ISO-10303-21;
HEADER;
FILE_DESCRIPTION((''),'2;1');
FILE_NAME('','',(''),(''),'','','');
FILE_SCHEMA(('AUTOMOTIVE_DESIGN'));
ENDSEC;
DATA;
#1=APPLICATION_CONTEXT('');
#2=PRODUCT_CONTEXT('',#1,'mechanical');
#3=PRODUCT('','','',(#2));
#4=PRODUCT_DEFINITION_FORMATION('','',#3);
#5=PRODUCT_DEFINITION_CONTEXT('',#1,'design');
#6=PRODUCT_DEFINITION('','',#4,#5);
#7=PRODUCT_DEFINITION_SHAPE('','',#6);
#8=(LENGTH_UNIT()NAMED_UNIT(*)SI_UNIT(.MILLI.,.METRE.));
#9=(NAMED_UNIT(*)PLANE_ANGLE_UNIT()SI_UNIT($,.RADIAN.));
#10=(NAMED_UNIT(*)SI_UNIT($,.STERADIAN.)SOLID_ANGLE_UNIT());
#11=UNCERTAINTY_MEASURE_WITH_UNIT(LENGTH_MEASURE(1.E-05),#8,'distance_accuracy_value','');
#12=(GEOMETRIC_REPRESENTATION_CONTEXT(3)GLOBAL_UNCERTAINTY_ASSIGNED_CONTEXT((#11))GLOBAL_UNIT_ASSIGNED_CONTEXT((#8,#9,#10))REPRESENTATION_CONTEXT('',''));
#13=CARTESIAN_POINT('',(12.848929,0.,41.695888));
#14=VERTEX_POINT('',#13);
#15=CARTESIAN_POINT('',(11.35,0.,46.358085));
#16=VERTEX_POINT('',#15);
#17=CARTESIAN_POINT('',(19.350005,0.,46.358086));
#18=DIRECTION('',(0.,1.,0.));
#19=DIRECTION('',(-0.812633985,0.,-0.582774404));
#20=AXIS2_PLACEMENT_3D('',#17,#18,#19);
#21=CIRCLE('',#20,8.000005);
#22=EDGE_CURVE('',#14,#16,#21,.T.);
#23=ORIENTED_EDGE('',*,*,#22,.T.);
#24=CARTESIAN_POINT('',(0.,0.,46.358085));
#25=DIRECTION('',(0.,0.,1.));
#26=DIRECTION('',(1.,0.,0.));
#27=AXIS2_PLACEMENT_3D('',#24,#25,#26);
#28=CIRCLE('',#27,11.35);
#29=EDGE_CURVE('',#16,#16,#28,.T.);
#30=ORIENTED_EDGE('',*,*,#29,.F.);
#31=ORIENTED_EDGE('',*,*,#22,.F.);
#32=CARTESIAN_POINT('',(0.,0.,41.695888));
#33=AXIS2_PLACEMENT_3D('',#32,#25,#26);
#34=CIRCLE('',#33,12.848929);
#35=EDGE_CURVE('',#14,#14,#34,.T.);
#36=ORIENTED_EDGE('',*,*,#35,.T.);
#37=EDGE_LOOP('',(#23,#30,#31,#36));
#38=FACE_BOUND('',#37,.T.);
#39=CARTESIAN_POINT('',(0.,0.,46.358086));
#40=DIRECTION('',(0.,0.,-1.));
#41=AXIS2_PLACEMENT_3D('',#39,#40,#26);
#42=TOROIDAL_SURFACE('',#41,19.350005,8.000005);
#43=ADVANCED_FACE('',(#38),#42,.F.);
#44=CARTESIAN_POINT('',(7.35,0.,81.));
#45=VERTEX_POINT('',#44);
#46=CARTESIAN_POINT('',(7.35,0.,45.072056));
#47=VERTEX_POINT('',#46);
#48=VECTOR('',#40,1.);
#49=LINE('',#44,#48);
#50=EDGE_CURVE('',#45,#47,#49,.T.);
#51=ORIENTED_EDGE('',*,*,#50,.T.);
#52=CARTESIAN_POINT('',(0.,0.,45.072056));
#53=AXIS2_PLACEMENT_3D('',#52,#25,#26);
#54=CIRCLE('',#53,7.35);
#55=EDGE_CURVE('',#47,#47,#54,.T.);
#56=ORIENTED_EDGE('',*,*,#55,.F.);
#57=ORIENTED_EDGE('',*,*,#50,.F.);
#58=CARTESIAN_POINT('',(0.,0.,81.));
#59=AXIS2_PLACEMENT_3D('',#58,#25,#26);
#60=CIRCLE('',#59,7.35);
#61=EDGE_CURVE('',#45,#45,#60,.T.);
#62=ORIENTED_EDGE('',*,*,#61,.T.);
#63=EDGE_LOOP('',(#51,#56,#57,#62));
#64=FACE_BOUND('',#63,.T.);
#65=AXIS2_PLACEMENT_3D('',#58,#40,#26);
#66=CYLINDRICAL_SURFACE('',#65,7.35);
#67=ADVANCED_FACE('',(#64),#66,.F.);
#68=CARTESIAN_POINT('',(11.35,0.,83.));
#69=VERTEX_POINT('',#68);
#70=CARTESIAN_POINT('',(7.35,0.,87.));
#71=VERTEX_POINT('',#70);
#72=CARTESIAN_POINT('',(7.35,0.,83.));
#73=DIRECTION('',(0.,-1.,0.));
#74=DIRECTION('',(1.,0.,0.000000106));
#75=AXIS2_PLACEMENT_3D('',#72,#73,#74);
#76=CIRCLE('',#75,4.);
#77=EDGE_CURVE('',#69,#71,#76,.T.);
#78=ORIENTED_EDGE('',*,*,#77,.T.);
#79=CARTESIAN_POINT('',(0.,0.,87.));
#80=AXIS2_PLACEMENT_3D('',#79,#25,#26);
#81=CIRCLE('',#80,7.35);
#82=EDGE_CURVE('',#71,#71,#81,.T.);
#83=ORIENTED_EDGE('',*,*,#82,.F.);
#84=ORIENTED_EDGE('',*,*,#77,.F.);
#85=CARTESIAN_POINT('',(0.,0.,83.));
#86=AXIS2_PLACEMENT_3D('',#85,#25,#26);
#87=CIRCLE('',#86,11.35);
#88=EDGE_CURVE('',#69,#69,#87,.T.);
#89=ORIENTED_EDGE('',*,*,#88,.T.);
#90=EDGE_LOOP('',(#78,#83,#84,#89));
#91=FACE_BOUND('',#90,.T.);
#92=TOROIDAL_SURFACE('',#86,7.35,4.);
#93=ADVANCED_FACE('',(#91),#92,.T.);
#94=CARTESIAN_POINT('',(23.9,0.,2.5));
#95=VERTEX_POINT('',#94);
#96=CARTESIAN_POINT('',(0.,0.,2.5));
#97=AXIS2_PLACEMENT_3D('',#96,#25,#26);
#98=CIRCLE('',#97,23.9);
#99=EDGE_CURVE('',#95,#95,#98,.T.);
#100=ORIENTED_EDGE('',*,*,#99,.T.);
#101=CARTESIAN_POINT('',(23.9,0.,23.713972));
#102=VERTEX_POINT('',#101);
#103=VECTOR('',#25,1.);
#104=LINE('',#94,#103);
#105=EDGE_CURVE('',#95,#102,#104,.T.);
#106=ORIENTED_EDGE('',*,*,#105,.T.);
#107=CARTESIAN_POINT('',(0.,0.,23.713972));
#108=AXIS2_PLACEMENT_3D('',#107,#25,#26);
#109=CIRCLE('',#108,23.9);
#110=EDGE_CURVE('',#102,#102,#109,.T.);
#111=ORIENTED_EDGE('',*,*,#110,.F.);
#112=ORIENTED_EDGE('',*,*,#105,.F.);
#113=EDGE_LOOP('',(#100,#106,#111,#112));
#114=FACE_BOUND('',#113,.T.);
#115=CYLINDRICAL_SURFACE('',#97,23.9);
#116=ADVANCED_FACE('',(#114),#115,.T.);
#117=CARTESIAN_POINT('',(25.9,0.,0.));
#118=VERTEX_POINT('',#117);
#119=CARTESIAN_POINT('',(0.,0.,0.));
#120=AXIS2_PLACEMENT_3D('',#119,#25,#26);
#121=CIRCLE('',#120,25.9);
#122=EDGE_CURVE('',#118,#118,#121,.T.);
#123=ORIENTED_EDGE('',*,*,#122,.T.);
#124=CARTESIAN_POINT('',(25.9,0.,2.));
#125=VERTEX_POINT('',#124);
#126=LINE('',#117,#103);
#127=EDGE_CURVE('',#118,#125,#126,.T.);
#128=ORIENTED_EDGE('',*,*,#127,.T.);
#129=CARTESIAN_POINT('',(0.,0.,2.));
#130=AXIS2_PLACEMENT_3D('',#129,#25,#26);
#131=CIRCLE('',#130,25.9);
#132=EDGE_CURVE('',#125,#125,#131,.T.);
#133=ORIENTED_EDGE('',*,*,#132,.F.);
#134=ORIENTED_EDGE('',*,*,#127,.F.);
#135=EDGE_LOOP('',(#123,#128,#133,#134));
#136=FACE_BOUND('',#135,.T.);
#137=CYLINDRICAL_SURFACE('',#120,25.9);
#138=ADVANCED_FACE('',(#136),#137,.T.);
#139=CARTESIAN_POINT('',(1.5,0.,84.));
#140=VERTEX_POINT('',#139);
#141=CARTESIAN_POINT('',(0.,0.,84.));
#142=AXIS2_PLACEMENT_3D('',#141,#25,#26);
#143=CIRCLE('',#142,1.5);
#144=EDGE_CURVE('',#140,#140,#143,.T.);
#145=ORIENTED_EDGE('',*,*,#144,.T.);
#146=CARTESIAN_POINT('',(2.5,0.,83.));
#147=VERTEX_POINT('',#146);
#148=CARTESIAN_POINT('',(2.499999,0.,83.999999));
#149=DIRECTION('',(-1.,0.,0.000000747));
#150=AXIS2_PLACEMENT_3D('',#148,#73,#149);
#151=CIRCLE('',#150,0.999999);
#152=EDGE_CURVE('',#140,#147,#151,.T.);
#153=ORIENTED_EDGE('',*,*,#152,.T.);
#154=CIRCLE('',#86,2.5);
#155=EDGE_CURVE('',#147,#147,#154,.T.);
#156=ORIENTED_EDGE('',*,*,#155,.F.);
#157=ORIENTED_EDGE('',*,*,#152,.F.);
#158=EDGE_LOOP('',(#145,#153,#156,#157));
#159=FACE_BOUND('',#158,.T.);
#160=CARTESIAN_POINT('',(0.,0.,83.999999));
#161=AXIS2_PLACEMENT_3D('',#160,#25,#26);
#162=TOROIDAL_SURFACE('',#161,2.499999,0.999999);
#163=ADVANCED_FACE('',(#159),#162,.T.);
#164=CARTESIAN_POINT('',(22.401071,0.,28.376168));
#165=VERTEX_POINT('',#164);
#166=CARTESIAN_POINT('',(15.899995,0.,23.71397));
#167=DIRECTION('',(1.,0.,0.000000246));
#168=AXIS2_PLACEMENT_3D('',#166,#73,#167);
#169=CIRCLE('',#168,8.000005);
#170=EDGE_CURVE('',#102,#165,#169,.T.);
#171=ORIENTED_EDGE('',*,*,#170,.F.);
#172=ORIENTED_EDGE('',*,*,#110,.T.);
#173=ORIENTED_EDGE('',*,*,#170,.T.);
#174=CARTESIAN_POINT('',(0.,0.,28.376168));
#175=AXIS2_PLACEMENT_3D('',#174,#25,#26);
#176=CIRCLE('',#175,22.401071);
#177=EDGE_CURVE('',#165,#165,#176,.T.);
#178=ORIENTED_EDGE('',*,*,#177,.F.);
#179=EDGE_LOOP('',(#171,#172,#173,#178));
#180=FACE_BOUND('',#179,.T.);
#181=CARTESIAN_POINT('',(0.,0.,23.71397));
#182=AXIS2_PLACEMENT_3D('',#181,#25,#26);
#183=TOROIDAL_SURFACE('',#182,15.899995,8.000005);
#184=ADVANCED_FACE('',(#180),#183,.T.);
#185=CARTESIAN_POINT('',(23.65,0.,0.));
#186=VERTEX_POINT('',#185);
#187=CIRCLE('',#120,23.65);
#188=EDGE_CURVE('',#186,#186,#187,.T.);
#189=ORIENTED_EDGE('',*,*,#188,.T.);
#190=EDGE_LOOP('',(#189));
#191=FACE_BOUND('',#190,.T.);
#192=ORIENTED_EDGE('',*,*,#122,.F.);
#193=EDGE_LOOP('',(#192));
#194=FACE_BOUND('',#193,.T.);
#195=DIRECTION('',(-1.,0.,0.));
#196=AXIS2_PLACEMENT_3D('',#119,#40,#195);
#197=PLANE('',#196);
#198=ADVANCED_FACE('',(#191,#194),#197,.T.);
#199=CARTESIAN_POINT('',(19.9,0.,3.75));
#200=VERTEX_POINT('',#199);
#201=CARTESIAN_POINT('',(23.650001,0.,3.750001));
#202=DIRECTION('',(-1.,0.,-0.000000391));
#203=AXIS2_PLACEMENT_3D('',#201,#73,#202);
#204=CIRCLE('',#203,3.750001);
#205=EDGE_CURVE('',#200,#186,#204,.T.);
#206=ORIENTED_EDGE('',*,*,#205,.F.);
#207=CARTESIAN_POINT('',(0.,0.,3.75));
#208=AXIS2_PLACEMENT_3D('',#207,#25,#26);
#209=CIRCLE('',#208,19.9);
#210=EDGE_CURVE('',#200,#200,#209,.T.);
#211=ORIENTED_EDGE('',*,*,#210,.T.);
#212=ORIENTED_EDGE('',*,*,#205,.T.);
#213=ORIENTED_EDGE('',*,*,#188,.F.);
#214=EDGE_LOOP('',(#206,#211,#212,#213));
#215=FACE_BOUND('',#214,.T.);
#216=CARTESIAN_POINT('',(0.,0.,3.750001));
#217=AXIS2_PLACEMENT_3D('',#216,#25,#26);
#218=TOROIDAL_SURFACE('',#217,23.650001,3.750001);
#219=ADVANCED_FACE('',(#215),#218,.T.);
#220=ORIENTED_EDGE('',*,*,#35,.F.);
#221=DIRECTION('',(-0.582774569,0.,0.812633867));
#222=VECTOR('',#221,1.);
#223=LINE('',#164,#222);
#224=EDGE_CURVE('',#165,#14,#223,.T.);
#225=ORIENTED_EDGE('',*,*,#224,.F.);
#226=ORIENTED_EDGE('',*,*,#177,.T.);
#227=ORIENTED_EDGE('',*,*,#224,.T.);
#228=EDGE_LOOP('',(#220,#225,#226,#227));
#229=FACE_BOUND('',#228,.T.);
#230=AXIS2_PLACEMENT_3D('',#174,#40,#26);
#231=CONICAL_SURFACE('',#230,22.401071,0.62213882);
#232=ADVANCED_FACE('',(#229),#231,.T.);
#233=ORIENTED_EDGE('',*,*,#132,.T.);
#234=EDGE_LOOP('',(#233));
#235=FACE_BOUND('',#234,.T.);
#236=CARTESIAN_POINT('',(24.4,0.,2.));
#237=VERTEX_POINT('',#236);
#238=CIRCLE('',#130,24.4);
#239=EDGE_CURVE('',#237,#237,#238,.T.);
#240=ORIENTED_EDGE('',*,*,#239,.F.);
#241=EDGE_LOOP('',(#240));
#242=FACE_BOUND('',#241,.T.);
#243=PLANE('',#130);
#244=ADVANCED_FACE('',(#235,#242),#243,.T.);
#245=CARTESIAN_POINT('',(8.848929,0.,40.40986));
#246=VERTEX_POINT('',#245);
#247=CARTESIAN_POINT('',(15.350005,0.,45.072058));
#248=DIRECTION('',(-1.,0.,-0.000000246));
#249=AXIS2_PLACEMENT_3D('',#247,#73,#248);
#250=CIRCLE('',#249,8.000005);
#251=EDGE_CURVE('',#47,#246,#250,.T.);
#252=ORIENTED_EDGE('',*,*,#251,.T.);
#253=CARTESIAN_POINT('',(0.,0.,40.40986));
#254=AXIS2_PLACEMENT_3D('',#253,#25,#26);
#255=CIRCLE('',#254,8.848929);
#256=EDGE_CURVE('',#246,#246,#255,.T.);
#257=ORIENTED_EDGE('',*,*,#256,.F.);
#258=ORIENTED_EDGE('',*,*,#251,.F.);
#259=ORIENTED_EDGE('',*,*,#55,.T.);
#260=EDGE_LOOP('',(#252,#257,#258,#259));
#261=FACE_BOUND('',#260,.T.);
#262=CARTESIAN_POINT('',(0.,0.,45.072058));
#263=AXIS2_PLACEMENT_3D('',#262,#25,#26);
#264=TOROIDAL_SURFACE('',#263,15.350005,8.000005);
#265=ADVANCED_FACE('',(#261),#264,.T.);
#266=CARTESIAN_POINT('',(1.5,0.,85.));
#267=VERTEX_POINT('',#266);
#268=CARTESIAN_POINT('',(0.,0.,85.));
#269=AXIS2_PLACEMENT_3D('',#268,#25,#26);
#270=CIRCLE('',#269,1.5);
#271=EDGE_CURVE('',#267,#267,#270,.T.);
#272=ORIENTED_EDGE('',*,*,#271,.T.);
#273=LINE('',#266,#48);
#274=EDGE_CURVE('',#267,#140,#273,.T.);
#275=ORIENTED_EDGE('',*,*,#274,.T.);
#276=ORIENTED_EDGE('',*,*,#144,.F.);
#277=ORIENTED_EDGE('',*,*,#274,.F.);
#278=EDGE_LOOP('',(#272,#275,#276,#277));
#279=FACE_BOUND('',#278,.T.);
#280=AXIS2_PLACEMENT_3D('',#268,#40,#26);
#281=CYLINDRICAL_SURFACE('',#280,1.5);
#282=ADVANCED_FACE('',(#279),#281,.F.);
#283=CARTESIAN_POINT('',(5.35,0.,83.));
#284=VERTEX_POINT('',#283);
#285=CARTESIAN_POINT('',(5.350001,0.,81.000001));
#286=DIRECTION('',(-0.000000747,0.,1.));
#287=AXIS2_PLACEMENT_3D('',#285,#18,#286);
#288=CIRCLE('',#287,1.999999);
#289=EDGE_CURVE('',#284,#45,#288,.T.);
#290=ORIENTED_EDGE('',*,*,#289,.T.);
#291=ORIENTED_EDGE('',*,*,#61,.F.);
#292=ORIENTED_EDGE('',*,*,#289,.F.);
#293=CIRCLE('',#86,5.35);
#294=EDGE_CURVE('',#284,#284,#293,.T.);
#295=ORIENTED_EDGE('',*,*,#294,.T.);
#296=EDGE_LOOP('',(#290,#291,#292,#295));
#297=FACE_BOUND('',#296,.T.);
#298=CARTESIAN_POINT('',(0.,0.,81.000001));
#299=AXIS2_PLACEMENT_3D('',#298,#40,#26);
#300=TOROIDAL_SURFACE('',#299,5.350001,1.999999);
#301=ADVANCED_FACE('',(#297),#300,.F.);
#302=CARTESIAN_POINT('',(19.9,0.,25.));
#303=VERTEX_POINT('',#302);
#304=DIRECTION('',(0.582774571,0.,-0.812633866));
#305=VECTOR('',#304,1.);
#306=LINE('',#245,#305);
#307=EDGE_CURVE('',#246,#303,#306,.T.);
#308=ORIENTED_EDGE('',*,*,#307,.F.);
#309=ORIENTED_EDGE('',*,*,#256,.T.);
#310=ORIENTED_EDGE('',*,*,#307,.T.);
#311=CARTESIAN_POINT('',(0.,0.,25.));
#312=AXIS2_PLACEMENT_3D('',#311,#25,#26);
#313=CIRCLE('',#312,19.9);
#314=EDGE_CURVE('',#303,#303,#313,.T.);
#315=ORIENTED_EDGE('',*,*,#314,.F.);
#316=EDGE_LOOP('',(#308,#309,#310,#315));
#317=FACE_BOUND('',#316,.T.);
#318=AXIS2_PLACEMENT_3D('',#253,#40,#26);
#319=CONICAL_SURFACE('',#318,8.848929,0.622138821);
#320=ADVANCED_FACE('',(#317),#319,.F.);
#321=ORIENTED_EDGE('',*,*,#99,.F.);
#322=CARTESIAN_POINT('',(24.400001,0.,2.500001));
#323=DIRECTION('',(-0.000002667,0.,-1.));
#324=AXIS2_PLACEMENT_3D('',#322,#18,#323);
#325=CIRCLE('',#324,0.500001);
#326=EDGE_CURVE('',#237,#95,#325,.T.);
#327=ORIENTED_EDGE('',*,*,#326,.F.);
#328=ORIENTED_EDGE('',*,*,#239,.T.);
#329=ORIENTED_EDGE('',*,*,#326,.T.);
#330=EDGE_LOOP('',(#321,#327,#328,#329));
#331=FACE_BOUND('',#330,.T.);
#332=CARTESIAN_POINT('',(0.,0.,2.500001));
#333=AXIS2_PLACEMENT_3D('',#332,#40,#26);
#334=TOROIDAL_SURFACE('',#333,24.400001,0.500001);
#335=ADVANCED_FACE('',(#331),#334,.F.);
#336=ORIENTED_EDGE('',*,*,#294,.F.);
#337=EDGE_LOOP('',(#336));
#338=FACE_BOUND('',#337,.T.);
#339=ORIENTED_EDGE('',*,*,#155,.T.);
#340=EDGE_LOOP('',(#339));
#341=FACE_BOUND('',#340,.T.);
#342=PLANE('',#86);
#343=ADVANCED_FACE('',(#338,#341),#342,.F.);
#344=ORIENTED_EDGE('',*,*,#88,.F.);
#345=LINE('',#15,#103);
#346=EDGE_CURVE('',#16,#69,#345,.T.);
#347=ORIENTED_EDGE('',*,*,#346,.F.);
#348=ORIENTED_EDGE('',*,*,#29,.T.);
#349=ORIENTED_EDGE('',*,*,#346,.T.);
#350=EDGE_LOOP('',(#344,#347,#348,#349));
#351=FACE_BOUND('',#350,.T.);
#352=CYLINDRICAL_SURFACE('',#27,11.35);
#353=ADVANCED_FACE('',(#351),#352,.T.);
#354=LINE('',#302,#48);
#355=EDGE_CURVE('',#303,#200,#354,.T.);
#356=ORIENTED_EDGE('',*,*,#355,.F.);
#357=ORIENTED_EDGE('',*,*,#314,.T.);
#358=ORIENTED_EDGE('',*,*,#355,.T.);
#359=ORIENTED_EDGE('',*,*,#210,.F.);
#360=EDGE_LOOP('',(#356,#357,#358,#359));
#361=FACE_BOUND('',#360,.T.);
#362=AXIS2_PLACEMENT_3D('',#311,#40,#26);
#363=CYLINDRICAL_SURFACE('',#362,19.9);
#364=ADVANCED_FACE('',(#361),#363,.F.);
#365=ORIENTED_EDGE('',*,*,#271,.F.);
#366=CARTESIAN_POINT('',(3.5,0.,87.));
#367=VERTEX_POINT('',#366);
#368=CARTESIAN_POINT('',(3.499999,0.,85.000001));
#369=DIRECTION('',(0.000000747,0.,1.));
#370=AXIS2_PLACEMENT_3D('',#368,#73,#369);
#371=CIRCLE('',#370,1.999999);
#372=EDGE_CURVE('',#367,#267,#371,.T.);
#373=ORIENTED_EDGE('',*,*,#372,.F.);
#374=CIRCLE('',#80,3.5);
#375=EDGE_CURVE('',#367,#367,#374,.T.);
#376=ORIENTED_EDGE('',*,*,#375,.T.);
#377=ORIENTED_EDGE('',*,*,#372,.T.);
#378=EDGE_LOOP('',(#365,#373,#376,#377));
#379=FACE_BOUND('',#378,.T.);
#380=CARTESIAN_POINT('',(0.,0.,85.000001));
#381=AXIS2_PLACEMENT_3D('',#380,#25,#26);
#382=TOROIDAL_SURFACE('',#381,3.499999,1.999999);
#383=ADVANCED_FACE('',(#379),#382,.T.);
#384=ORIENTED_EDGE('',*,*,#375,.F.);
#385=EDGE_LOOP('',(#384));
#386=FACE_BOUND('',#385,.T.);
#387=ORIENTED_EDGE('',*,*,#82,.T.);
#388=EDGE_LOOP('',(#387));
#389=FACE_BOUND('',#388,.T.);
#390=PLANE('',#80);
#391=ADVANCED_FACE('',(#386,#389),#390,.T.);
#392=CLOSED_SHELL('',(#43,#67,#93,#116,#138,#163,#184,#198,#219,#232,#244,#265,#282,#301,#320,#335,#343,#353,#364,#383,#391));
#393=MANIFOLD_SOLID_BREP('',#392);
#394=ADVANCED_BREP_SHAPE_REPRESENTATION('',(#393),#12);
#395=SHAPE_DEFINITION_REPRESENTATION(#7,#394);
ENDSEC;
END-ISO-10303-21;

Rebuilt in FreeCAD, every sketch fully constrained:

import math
import FreeCAD as App
import Part
import Sketcher

V = App.Vector
Q = App.Units.Quantity

doc = App.newDocument("Part")
body = doc.addObject("PartDesign::Body", "Body")

# Sketch on XZ plane
sketch1 = body.newObject("Sketcher::SketchObject", "Sketch")
sketch1.AttachmentSupport = (doc.getObject("XZ_Plane"), [""])
sketch1.MapMode = "FlatFace"
sketch1.addGeometry(Part.LineSegment(V(19.9, 25, 0), V(19.9, 3.75, 0)), False)
sketch1.addGeometry(Part.ArcOfCircle(Part.Circle(V(23.650001, 3.750001, 0), V(0, 0, 1), 3.750001), math.radians(-179.999978), math.radians(-90.000022)), False)
sketch1.addGeometry(Part.LineSegment(V(23.65, 0, 0), V(25.9, 0, 0)), False)
sketch1.addGeometry(Part.LineSegment(V(25.9, 0, 0), V(25.9, 2, 0)), False)
sketch1.addGeometry(Part.LineSegment(V(25.9, 2, 0), V(24.4, 2, 0)), False)
sketch1.addGeometry(Part.ArcOfCircle(Part.Circle(V(24.400001, 2.500001, 0), V(0, 0, 1), 0.500001), math.radians(-179.999847), math.radians(-90.000153)), False)
sketch1.addGeometry(Part.LineSegment(V(23.9, 2.5, 0), V(23.9, 23.713972, 0)), False)
sketch1.addGeometry(Part.ArcOfCircle(Part.Circle(V(15.899995, 23.71397, 0), V(0, 0, 1), 8.000005), math.radians(0.000014), math.radians(35.645917)), False)
sketch1.addGeometry(Part.LineSegment(V(22.401071, 28.376168, 0), V(12.848929, 41.695888, 0)), False)
sketch1.addGeometry(Part.ArcOfCircle(Part.Circle(V(19.350005, 46.358086, 0), V(0, 0, 1), 8.000005), math.radians(-179.999993), math.radians(-144.354083)), False)
sketch1.addGeometry(Part.LineSegment(V(11.35, 46.358085, 0), V(11.35, 83, 0)), False)
sketch1.addGeometry(Part.ArcOfCircle(Part.Circle(V(7.35, 83, 0), V(0, 0, 1), 4), math.radians(0.000006), math.radians(89.999994)), False)
sketch1.addGeometry(Part.LineSegment(V(7.35, 87, 0), V(3.5, 87, 0)), False)
sketch1.addGeometry(Part.ArcOfCircle(Part.Circle(V(3.499999, 85.000001, 0), V(0, 0, 1), 1.999999), math.radians(89.999957), math.radians(180.000043)), False)
sketch1.addGeometry(Part.LineSegment(V(1.5, 85, 0), V(1.5, 84, 0)), False)
sketch1.addGeometry(Part.ArcOfCircle(Part.Circle(V(2.499999, 83.999999, 0), V(0, 0, 1), 0.999999), math.radians(179.999957), math.radians(270.000043)), False)
sketch1.addGeometry(Part.LineSegment(V(2.5, 83, 0), V(5.35, 83, 0)), False)
sketch1.addGeometry(Part.ArcOfCircle(Part.Circle(V(5.350001, 81.000001, 0), V(0, 0, 1), 1.999999), math.radians(-0.000043), math.radians(90.000043)), False)
sketch1.addGeometry(Part.LineSegment(V(7.35, 81, 0), V(7.35, 45.072056, 0)), False)
sketch1.addGeometry(Part.ArcOfCircle(Part.Circle(V(15.350005, 45.072058, 0), V(0, 0, 1), 8.000005), math.radians(-179.999986), math.radians(-144.354083)), False)
sketch1.addGeometry(Part.LineSegment(V(8.848929, 40.40986, 0), V(19.9, 25, 0)), False)
sketch1.addConstraint(Sketcher.Constraint("Tangent", 0, 2, 1, 1))
sketch1.addConstraint(Sketcher.Constraint("Tangent", 1, 2, 2, 1))
sketch1.addConstraint(Sketcher.Constraint("Coincident", 2, 2, 3, 1))
sketch1.addConstraint(Sketcher.Constraint("Coincident", 3, 2, 4, 1))
sketch1.addConstraint(Sketcher.Constraint("Coincident", 4, 2, 5, 2))
sketch1.addConstraint(Sketcher.Constraint("Coincident", 5, 1, 6, 1))
sketch1.addConstraint(Sketcher.Constraint("Tangent", 6, 2, 7, 1))
sketch1.addConstraint(Sketcher.Constraint("Tangent", 7, 2, 8, 1))
sketch1.addConstraint(Sketcher.Constraint("Tangent", 8, 2, 9, 2))
sketch1.addConstraint(Sketcher.Constraint("Tangent", 9, 1, 10, 1))
sketch1.addConstraint(Sketcher.Constraint("Tangent", 10, 2, 11, 1))
sketch1.addConstraint(Sketcher.Constraint("Tangent", 11, 2, 12, 1))
sketch1.addConstraint(Sketcher.Constraint("Tangent", 12, 2, 13, 1))
sketch1.addConstraint(Sketcher.Constraint("Tangent", 13, 2, 14, 1))
sketch1.addConstraint(Sketcher.Constraint("Tangent", 14, 2, 15, 1))
sketch1.addConstraint(Sketcher.Constraint("Tangent", 15, 2, 16, 1))
sketch1.addConstraint(Sketcher.Constraint("Tangent", 16, 2, 17, 2))
sketch1.addConstraint(Sketcher.Constraint("Tangent", 17, 1, 18, 1))
sketch1.addConstraint(Sketcher.Constraint("Tangent", 18, 2, 19, 1))
sketch1.addConstraint(Sketcher.Constraint("Tangent", 19, 2, 20, 1))
sketch1.addConstraint(Sketcher.Constraint("Coincident", 20, 2, 0, 1))
sketch1.addConstraint(Sketcher.Constraint("Vertical", 0))
sketch1.addConstraint(Sketcher.Constraint("Horizontal", 2))
sketch1.addConstraint(Sketcher.Constraint("Vertical", 3))
sketch1.addConstraint(Sketcher.Constraint("Horizontal", 4))
sketch1.addConstraint(Sketcher.Constraint("Vertical", 6))
sketch1.addConstraint(Sketcher.Constraint("Vertical", 10))
sketch1.addConstraint(Sketcher.Constraint("Horizontal", 12))
sketch1.addConstraint(Sketcher.Constraint("Vertical", 14))
sketch1.addConstraint(Sketcher.Constraint("Horizontal", 16))
sketch1.addConstraint(Sketcher.Constraint("Vertical", 18))
sketch1.addConstraint(Sketcher.Constraint("Equal", 7, 9))
sketch1.addConstraint(Sketcher.Constraint("Equal", 13, 17))
sketch1.addConstraint(Sketcher.Constraint("Equal", 9, 19))
sketch1.addConstraint(Sketcher.Constraint("PointOnObject", 1, 2, -1))
sketch1.addConstraint(Sketcher.Constraint("Parallel", 8, 20))
sketch1.addConstraint(Sketcher.Constraint("Horizontal", 10, 2, 15, 2))
sketch1.addConstraint(Sketcher.Constraint("Vertical", 5, 3, 4, 2))
sketch1.addConstraint(Sketcher.Constraint("Vertical", 11, 2, 17, 1))
sketch1.addConstraint(Sketcher.Constraint("Radius", 11, Q("4 mm")))
sketch1.addConstraint(Sketcher.Constraint("Radius", 13, Q("1.999999 mm")))
sketch1.addConstraint(Sketcher.Constraint("Radius", 15, Q("0.999999 mm")))
sketch1.addConstraint(Sketcher.Constraint("Radius", 5, Q("0.500001 mm")))
sketch1.addConstraint(Sketcher.Constraint("DistanceY", 3, 1, 3, 2, Q("2 mm")))
sketch1.addConstraint(Sketcher.Constraint("Radius", 1, Q("3.750001 mm")))
sketch1.addConstraint(Sketcher.Constraint("DistanceX", 4, 2, 4, 1, Q("1.5 mm")))
sketch1.addConstraint(Sketcher.Constraint("DistanceY", -1, 1, 11, 3, Q("83 mm")))
sketch1.addConstraint(Sketcher.Constraint("DistanceY", -1, 1, 20, 2, Q("25 mm")))
sketch1.addConstraint(Sketcher.Constraint("DistanceX", 0, 2, 2, 2, Q("6 mm")))
sketch1.addConstraint(Sketcher.Constraint("DistanceX", 12, 2, 12, 1, Q("3.85 mm")))
sketch1.addConstraint(Sketcher.Constraint("DistanceX", -1, 1, 5, 3, Q("24.400001 mm")))
sketch1.addConstraint(Sketcher.Constraint("DistanceX", -1, 1, 13, 3, Q("3.499999 mm")))
sketch1.addConstraint(Sketcher.Constraint("DistanceY", -1, 1, 5, 1, Q("2.5 mm")))
sketch1.addConstraint(Sketcher.Constraint("Radius", 7, Q("8.000005 mm")))
sketch1.addConstraint(Sketcher.Constraint("Distance", 8, Q("16.390801 mm")))
sketch1.addConstraint(Sketcher.Constraint("DistanceY", 6, 1, 6, 2, Q("21.213972 mm")))
revolution = body.newObject("PartDesign::Revolution", "Revolution")
revolution.Profile = sketch1
revolution.ReferenceAxis = (sketch1, ["V_Axis"])
revolution.Angle = 360

doc.recompute()
